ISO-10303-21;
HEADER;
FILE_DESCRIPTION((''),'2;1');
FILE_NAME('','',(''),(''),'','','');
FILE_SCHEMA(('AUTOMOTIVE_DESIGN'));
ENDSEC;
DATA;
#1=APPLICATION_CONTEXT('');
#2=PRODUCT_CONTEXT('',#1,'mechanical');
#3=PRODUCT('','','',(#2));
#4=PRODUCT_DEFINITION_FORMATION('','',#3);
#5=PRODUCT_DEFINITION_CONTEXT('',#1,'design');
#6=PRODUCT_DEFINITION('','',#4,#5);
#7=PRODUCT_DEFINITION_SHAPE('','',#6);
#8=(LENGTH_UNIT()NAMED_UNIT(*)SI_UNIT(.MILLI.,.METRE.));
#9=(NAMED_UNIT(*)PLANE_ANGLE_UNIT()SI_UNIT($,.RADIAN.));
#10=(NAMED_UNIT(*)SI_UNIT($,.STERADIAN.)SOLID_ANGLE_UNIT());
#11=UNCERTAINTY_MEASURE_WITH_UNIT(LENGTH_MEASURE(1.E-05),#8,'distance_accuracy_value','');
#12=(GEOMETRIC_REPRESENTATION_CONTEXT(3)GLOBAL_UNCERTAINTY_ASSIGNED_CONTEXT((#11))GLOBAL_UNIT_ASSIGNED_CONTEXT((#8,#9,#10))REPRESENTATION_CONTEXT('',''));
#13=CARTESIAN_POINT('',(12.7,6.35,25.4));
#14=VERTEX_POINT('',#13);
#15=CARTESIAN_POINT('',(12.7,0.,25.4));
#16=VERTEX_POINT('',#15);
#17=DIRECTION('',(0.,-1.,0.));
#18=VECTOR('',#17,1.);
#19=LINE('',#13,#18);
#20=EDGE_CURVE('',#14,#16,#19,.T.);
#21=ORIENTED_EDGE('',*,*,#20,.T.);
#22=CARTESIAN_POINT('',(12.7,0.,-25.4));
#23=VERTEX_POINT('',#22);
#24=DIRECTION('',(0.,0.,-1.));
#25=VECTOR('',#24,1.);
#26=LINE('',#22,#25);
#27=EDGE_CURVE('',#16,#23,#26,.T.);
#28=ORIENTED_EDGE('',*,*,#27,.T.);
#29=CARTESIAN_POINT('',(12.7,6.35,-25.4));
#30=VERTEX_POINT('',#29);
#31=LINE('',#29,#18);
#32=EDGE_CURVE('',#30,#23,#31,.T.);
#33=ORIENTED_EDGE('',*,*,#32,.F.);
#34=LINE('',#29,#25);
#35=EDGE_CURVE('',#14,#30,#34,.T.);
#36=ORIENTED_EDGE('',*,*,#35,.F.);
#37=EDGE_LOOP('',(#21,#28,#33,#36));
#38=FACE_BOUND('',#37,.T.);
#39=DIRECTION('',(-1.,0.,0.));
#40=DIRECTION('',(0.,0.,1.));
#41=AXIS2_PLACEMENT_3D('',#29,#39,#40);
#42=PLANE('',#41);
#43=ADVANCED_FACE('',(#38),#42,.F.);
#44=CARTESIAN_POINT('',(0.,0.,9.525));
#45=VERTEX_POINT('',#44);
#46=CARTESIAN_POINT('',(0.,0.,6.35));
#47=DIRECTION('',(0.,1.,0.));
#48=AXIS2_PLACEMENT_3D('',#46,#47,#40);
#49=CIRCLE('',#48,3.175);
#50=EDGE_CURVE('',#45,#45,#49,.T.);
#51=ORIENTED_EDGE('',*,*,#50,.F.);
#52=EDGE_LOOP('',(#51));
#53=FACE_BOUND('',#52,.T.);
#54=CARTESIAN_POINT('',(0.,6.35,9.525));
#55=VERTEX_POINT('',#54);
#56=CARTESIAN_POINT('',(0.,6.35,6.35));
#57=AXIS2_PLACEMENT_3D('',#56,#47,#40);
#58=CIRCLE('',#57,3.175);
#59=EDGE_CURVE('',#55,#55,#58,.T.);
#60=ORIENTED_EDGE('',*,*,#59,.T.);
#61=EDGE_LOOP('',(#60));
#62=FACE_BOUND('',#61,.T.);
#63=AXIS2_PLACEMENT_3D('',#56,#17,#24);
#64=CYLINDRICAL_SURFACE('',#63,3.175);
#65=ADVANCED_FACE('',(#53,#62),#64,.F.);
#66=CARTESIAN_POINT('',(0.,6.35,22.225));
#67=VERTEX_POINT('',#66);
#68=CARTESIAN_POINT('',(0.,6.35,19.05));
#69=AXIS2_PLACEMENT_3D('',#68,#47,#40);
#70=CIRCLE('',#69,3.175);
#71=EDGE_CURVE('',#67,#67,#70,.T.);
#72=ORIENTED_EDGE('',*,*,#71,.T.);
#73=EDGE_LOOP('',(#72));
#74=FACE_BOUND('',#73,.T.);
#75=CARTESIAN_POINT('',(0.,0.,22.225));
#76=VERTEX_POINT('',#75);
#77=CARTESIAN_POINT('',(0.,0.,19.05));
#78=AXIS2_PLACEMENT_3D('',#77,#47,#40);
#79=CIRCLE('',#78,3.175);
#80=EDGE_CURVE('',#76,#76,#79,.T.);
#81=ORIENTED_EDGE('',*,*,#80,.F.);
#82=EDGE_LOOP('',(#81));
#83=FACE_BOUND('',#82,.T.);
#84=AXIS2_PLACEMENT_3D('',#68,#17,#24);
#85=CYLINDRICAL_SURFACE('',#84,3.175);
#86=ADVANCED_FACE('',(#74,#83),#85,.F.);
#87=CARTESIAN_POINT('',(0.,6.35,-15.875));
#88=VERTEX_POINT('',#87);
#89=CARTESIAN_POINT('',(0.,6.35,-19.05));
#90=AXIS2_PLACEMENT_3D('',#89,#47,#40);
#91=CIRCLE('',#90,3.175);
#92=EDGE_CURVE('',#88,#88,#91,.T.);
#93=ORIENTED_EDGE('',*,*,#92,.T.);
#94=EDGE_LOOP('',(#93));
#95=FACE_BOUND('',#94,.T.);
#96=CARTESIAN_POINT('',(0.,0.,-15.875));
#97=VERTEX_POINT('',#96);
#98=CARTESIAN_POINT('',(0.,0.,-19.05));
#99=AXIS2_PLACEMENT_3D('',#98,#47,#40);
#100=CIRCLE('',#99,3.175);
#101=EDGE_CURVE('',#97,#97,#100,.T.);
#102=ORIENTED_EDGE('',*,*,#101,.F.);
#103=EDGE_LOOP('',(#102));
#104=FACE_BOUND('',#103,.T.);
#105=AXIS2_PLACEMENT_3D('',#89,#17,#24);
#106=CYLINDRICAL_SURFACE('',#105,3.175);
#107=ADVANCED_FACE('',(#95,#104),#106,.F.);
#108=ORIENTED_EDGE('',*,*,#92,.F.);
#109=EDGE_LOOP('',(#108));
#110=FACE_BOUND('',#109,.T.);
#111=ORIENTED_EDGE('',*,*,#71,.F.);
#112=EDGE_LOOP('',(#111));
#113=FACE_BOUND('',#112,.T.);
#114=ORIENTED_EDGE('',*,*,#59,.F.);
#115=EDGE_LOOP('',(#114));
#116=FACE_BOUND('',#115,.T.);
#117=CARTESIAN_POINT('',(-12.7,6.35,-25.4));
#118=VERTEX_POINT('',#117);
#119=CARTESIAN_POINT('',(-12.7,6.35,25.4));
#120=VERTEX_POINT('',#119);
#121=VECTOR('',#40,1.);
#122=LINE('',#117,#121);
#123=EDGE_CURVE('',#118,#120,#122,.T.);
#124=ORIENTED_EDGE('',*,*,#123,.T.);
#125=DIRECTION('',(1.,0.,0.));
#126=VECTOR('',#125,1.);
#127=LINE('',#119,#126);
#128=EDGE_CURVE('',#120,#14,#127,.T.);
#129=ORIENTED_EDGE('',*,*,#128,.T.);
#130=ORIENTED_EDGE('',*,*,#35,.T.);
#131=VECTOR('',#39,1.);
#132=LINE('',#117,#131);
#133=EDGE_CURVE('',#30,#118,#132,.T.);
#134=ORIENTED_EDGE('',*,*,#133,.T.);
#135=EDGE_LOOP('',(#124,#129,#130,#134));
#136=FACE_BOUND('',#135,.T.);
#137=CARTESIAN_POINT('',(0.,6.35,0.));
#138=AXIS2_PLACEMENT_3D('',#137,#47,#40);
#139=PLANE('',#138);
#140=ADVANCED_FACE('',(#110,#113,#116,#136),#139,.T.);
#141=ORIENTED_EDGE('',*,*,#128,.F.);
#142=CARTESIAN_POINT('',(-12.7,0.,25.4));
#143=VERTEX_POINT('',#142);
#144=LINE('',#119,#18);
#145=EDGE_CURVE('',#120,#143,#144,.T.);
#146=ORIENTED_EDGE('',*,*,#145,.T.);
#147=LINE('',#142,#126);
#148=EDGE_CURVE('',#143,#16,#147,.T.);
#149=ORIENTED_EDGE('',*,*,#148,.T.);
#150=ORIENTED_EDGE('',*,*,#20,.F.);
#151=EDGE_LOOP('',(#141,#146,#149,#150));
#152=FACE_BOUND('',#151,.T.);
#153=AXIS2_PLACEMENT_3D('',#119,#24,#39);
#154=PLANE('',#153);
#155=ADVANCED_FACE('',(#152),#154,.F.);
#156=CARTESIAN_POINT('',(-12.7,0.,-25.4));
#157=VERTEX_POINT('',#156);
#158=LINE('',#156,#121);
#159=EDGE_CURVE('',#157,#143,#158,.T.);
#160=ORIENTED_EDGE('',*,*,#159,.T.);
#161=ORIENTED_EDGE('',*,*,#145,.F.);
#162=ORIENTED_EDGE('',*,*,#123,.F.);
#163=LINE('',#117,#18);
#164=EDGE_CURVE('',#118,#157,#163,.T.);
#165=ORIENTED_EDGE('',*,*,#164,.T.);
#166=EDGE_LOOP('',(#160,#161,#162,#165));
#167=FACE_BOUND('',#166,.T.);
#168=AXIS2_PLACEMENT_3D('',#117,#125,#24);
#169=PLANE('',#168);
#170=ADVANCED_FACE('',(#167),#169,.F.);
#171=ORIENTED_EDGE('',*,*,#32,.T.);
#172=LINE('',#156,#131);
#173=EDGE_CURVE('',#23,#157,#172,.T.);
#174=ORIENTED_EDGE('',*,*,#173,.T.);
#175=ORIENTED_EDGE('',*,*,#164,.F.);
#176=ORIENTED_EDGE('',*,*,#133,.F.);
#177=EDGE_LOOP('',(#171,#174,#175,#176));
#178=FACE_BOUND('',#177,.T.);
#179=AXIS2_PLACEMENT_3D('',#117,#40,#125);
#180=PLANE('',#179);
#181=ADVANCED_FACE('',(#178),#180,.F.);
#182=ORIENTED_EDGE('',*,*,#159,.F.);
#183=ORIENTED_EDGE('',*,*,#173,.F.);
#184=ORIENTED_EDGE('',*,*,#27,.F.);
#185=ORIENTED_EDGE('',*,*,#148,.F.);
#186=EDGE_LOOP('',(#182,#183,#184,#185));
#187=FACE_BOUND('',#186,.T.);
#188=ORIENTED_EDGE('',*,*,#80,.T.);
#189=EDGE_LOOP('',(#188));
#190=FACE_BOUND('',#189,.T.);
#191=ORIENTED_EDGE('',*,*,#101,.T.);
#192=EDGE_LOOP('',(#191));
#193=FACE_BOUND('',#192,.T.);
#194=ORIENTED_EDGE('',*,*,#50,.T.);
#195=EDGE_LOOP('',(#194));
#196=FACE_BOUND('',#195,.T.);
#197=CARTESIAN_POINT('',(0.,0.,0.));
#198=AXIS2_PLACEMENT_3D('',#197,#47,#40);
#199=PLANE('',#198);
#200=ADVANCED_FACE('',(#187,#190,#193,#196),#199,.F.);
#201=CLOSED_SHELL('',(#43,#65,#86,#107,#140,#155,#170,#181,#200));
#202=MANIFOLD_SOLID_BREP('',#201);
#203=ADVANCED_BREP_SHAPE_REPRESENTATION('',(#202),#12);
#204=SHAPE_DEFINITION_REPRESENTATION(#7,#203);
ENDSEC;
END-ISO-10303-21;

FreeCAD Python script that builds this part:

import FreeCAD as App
import Part
import Sketcher
from FreeCAD import Vector
Q = App.Units.Quantity


def add_polygon(sketch, points):
    """Adds a closed chain of lines whose ends are joined by coincident constraints."""
    first, n = sketch.GeometryCount, len(points)
    for a, b in zip(points, points[1:] + points[:1]):
        sketch.addGeometry(Part.LineSegment(App.Vector(*a, 0), App.Vector(*b, 0)), False)
    for i in range(n):
        sketch.addConstraint(Sketcher.Constraint("Coincident", first + i, 2, first + (i + 1) % n, 1))

doc = App.newDocument("Part")
body = doc.addObject("PartDesign::Body", "Body")

# Sketch on XZ plane
sketch1 = doc.addObject("Sketcher::SketchObject", "Sketch")
body.addObject(sketch1)
sketch1.AttachmentSupport = (doc.XZ_Plane, [""])
sketch1.MapMode = "FlatFace"
add_polygon(sketch1, [(-12.7, -25.4), (-12.7, 25.4), (12.7, 25.4), (12.7, -25.4)])  # lines 0-3
sketch1.addGeometry(Part.Circle(Vector(0, 19.1, 0), Vector(0, 0, 1), 3.2), False)  # 4
sketch1.addGeometry(Part.Circle(Vector(0, 6.3, 0), Vector(0, 0, 1), 3.2), False)  # 5
sketch1.addGeometry(Part.Circle(Vector(0, -19.1, 0), Vector(0, 0, 1), 3.2), False)  # 6
sketch1.addConstraint([
    Sketcher.Constraint("Vertical", 0),
    Sketcher.Constraint("Horizontal", 1),
    Sketcher.Constraint("Vertical", 2),
    Sketcher.Constraint("Horizontal", 3),
    Sketcher.Constraint("Equal", 4, 5),
    Sketcher.Constraint("Equal", 5, 6),
    Sketcher.Constraint("Symmetric", 4, 3, 6, 3, -1, 1),
    Sketcher.Constraint("Symmetric", 0, 2, 2, 2, -1, 1),
    Sketcher.Constraint("PointOnObject", 4, 3, -2),
    Sketcher.Constraint("PointOnObject", 5, 3, -2),
    Sketcher.Constraint("Diameter", 4, Q("0.25 in")),
    Sketcher.Constraint("DistanceX", 1, 1, 1, 2, Q("1 in")),
    Sketcher.Constraint("DistanceY", 0, 1, 0, 2, Q("2 in")),
    Sketcher.Constraint("DistanceY", 6, 3, 5, 3, Q("1 in")),
    Sketcher.Constraint("DistanceY", 5, 3, 4, 3, Q("0.5 in")),
])
pad1 = doc.addObject("PartDesign::Pad", "Pad")
body.addObject(pad1)
pad1.Profile = sketch1
pad1.Length = Q("0.25 in")
pad1.Reversed = True

doc.recompute()
